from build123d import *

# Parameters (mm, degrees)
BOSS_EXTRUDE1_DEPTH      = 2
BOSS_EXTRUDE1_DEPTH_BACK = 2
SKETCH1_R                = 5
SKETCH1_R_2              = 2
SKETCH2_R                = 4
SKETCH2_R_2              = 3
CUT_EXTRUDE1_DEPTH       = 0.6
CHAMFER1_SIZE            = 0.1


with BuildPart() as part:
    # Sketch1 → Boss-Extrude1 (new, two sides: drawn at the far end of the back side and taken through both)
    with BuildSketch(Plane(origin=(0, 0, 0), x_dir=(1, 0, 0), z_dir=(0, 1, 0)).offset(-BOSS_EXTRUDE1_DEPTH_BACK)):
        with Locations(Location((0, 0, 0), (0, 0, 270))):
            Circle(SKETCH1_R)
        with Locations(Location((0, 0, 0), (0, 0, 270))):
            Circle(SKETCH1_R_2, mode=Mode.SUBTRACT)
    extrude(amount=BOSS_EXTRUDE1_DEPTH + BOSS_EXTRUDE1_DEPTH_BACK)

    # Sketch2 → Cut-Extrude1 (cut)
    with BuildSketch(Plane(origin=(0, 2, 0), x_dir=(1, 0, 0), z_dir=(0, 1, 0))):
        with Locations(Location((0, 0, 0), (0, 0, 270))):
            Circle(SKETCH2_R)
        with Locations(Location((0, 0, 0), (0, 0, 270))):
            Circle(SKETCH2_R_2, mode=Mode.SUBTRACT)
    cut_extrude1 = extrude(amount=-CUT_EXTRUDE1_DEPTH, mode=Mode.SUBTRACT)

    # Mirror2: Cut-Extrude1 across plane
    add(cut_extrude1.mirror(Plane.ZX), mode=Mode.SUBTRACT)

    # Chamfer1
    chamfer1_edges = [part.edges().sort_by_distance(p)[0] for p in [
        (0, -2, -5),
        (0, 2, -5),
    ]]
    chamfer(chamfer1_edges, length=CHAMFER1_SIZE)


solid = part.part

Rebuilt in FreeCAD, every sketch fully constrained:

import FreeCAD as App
import Part
import Sketcher
from FreeCAD import Vector


def edges_at(feature, points):
    """Names of the edges that pass closest to the given points."""
    edges = feature.Shape.Edges
    near = lambda p: min(range(len(edges)), key=lambda i: edges[i].distToShape(Part.Vertex(*p))[0])
    return sorted({f"Edge{near(p) + 1}" for p in points})

doc = App.newDocument("Part")
body = doc.addObject("PartDesign::Body", "Body")

sketch1 = body.newObject("Sketcher::SketchObject", "Sketch")
sketch1.AttachmentSupport = (doc.getObject("XZ_Plane"), [""])
sketch1.MapMode = "FlatFace"
sketch1.addGeometry([
    Part.Circle(Vector(0, 0, 0), Vector(0, 0, 1), 5),
    Part.Circle(Vector(0, 0, 0), Vector(0, 0, 1), 2),
], False)
sketch1.addConstraint([
    Sketcher.Constraint("Coincident", 0, 3, -1, 1),
    Sketcher.Constraint("Coincident", 1, 3, -1, 1),
    Sketcher.Constraint("Diameter", 0, 10.0),
    Sketcher.Constraint("Diameter", 1, 4.0),
])
pad1 = body.newObject("PartDesign::Pad", "Pad")
pad1.Profile = sketch1
pad1.Type = "TwoLengths"
pad1.Length = 2
pad1.Length2 = 2
pad1.Reversed = True

sketch2 = body.newObject("Sketcher::SketchObject", "Sketch001")
sketch2.AttachmentSupport = (doc.getObject("XZ_Plane"), [""])
sketch2.MapMode = "FlatFace"
sketch2.AttachmentOffset = App.Placement(Vector(0, 0, -2), App.Rotation())
sketch2.addGeometry([
    Part.Circle(Vector(0, 0, 0), Vector(0, 0, 1), 4),
    Part.Circle(Vector(0, 0, 0), Vector(0, 0, 1), 3),
], False)
sketch2.addConstraint([
    Sketcher.Constraint("Coincident", 0, 3, -1, 1),
    Sketcher.Constraint("Coincident", 1, 3, -1, 1),
    Sketcher.Constraint("Diameter", 0, 8.0),
    Sketcher.Constraint("Diameter", 1, 6.0),
])
pocket1 = body.newObject("PartDesign::Pocket", "Pocket")
pocket1.Profile = sketch2
pocket1.Length = 0.6
pocket1.Reversed = True
doc.recompute()

mirrored = body.newObject("PartDesign::Mirrored", "Mirrored")
mirrored.Originals = [pocket1]
mirrored.MirrorPlane = (doc.getObject("XZ_Plane"), [""])
body.Tip = mirrored
doc.recompute()

chamfer = body.newObject("PartDesign::Chamfer", "Chamfer")
chamfer.Base = (mirrored, edges_at(mirrored, [(0, -2, -5), (0, 2, -5)]))
chamfer.Size = 0.1

doc.recompute()
